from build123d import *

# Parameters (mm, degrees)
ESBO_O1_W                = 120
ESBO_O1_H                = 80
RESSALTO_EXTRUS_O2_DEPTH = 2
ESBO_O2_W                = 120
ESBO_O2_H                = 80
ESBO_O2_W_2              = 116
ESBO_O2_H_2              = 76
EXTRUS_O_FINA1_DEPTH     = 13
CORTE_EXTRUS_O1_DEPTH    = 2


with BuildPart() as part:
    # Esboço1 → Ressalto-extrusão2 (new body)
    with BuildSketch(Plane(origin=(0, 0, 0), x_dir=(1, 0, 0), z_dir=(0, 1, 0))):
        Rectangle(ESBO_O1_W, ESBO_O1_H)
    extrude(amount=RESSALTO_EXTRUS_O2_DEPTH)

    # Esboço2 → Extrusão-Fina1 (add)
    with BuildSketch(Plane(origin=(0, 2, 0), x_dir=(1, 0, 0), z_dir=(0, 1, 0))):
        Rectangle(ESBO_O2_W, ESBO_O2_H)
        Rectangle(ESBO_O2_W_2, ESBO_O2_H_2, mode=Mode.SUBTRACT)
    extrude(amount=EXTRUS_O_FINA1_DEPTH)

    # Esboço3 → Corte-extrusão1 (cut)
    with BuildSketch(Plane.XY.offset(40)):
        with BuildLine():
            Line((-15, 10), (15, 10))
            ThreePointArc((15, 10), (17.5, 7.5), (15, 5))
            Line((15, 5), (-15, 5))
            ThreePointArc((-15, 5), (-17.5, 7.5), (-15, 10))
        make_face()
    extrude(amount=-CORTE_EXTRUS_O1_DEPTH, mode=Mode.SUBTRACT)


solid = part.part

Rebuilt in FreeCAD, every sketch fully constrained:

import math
import FreeCAD as App
import Part
import Sketcher

doc = App.newDocument("Part")
body = doc.addObject("PartDesign::Body", "Body")

sketch1 = body.newObject("Sketcher::SketchObject", "Sketch")
sketch1.AttachmentSupport = (doc.getObject("XZ_Plane"), [""])
sketch1.MapMode = "FlatFace"
sketch1.addGeometry([
    Part.LineSegment(App.Vector(-60, -40, 0), App.Vector(-60, 40, 0)),
    Part.LineSegment(App.Vector(-60, 40, 0), App.Vector(60, 40, 0)),
    Part.LineSegment(App.Vector(60, 40, 0), App.Vector(60, -40, 0)),
    Part.LineSegment(App.Vector(60, -40, 0), App.Vector(-60, -40, 0)),
], False)
sketch1.addConstraint([
    Sketcher.Constraint("Coincident", 0, 2, 1, 1),
    Sketcher.Constraint("Coincident", 1, 2, 2, 1),
    Sketcher.Constraint("Coincident", 2, 2, 3, 1),
    Sketcher.Constraint("Coincident", 3, 2, 0, 1),
    Sketcher.Constraint("Vertical", 0),
    Sketcher.Constraint("Horizontal", 1),
    Sketcher.Constraint("Vertical", 2),
    Sketcher.Constraint("Horizontal", 3),
    Sketcher.Constraint("Symmetric", 0, 2, 2, 2, -1, 1),
    Sketcher.Constraint("DistanceX", 1, 1, 1, 2, 120.0),
    Sketcher.Constraint("DistanceY", 0, 1, 0, 2, 80.0),
])
pad1 = body.newObject("PartDesign::Pad", "Pad")
pad1.Profile = sketch1
pad1.Length = 2
pad1.Reversed = True

sketch2 = body.newObject("Sketcher::SketchObject", "Sketch001")
sketch2.AttachmentSupport = (doc.getObject("XZ_Plane"), [""])
sketch2.MapMode = "FlatFace"
sketch2.AttachmentOffset = App.Placement(App.Vector(0, 0, -2), App.Rotation())
sketch2.addGeometry([
    Part.LineSegment(App.Vector(-60, -40, 0), App.Vector(-60, 40, 0)),
    Part.LineSegment(App.Vector(-60, 40, 0), App.Vector(60, 40, 0)),
    Part.LineSegment(App.Vector(60, 40, 0), App.Vector(60, -40, 0)),
    Part.LineSegment(App.Vector(60, -40, 0), App.Vector(-60, -40, 0)),
    Part.LineSegment(App.Vector(58, 38, 0), App.Vector(-58, 38, 0)),
    Part.LineSegment(App.Vector(-58, 38, 0), App.Vector(-58, -38, 0)),
    Part.LineSegment(App.Vector(-58, -38, 0), App.Vector(58, -38, 0)),
    Part.LineSegment(App.Vector(58, -38, 0), App.Vector(58, 38, 0)),
], False)
sketch2.addConstraint([
    Sketcher.Constraint("Coincident", 0, 2, 1, 1),
    Sketcher.Constraint("Coincident", 1, 2, 2, 1),
    Sketcher.Constraint("Coincident", 2, 2, 3, 1),
    Sketcher.Constraint("Coincident", 3, 2, 0, 1),
    Sketcher.Constraint("Coincident", 4, 2, 5, 1),
    Sketcher.Constraint("Coincident", 5, 2, 6, 1),
    Sketcher.Constraint("Coincident", 6, 2, 7, 1),
    Sketcher.Constraint("Coincident", 7, 2, 4, 1),
    Sketcher.Constraint("Vertical", 0),
    Sketcher.Constraint("Horizontal", 1),
    Sketcher.Constraint("Vertical", 2),
    Sketcher.Constraint("Horizontal", 3),
    Sketcher.Constraint("Horizontal", 4),
    Sketcher.Constraint("Vertical", 5),
    Sketcher.Constraint("Horizontal", 6),
    Sketcher.Constraint("Vertical", 7),
    Sketcher.Constraint("Symmetric", 0, 2, 2, 2, -1, 1),
    Sketcher.Constraint("Symmetric", 4, 2, 6, 2, -1, 1),
    Sketcher.Constraint("DistanceX", 1, 1, 1, 2, 120.0),
    Sketcher.Constraint("DistanceX", 4, 2, 4, 1, 116.0),
    Sketcher.Constraint("DistanceY", 0, 1, 0, 2, 80.0),
    Sketcher.Constraint("DistanceY", 5, 2, 5, 1, 76.0),
])
pad2 = body.newObject("PartDesign::Pad", "Pad001")
pad2.Profile = sketch2
pad2.Length = 13
pad2.Reversed = True

sketch3 = body.newObject("Sketcher::SketchObject", "Sketch002")
sketch3.AttachmentSupport = (doc.getObject("XY_Plane"), [""])
sketch3.MapMode = "FlatFace"
sketch3.AttachmentOffset = App.Placement(App.Vector(0, 0, 40), App.Rotation())
sketch3.addGeometry([
    Part.LineSegment(App.Vector(15, 10, 0), App.Vector(-15, 10, 0)),
    Part.ArcOfCircle(Part.Circle(App.Vector(-15, 7.5, 0), App.Vector(0, 0, 1), 2.5), math.radians(90), math.radians(270)),
    Part.LineSegment(App.Vector(-15, 5, 0), App.Vector(15, 5, 0)),
    Part.ArcOfCircle(Part.Circle(App.Vector(15, 7.5, 0), App.Vector(0, 0, 1), 2.5), math.radians(-90), math.radians(90)),
], False)
sketch3.addConstraint([
    Sketcher.Constraint("Tangent", 0, 2, 1, 1),
    Sketcher.Constraint("Tangent", 1, 2, 2, 1),
    Sketcher.Constraint("Tangent", 2, 2, 3, 1),
    Sketcher.Constraint("Tangent", 3, 2, 0, 1),
    Sketcher.Constraint("Horizontal", 0),
    Sketcher.Constraint("Horizontal", 2),
    Sketcher.Constraint("Radius", 1, 2.5),
    Sketcher.Constraint("DistanceX", 0, 2, 0, 1, 30.0),
    Sketcher.Constraint("DistanceX", 1, 3, -1, 1, 15.0),
    Sketcher.Constraint("DistanceY", -1, 1, 0, 2, 10.0),
])
pocket1 = body.newObject("PartDesign::Pocket", "Pocket")
pocket1.Profile = sketch3
pocket1.Length = 2

doc.recompute()
